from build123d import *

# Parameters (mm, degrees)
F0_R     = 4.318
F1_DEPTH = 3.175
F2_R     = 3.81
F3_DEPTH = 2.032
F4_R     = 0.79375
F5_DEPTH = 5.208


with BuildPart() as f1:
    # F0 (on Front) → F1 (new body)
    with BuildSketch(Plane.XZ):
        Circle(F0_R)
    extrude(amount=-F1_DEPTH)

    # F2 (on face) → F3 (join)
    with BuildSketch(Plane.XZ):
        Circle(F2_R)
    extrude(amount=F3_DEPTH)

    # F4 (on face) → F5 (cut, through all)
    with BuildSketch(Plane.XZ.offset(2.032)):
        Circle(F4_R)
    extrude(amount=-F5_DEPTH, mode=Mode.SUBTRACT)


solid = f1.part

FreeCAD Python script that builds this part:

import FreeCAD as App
import Part
import Sketcher

V = App.Vector
Q = App.Units.Quantity

doc = App.newDocument("Part")
body = doc.addObject("PartDesign::Body", "Body")

# Sketch on XZ plane
sketch1 = doc.addObject("Sketcher::SketchObject", "Sketch")
body.addObject(sketch1)
sketch1.AttachmentSupport = (doc.XZ_Plane, [""])
sketch1.MapMode = "FlatFace"
sketch1.addGeometry(Part.Circle(V(0, 0, 0), V(0, 0, 1), 4.3), False)
sketch1.addConstraint(Sketcher.Constraint("Coincident", 0, 3, -1, 1))
sketch1.addConstraint(Sketcher.Constraint("Diameter", 0, Q("0.34 in")))
pad1 = doc.addObject("PartDesign::Pad", "Pad")
body.addObject(pad1)
pad1.Profile = sketch1
pad1.Length = Q("0.125 in")
pad1.Reversed = True

# Sketch on XZ plane
sketch2 = doc.addObject("Sketcher::SketchObject", "Sketch001")
body.addObject(sketch2)
sketch2.AttachmentSupport = (doc.XZ_Plane, [""])
sketch2.MapMode = "FlatFace"
sketch2.addGeometry(Part.Circle(V(0, 0, 0), V(0, 0, 1), 3.8), False)
sketch2.addConstraint(Sketcher.Constraint("Coincident", 0, 3, -1, 1))
sketch2.addConstraint(Sketcher.Constraint("Diameter", 0, Q("0.3 in")))
pad2 = doc.addObject("PartDesign::Pad", "Pad001")
body.addObject(pad2)
pad2.Profile = sketch2
pad2.Length = Q("0.08 in")

# Sketch on XZ plane
sketch3 = doc.addObject("Sketcher::SketchObject", "Sketch002")
body.addObject(sketch3)
sketch3.AttachmentSupport = (doc.XZ_Plane, [""])
sketch3.MapMode = "FlatFace"
sketch3.AttachmentOffset = App.Placement(V(0, 0, 0.08 * 25.4), App.Rotation())
sketch3.addGeometry(Part.Circle(V(0, 0, 0), V(0, 0, 1), 0.8), False)
sketch3.addConstraint(Sketcher.Constraint("Coincident", 0, 3, -1, 1))
sketch3.addConstraint(Sketcher.Constraint("Diameter", 0, Q("0.0625 in")))
pocket1 = doc.addObject("PartDesign::Pocket", "Pocket")
body.addObject(pocket1)
pocket1.Profile = sketch3
pocket1.Type = "ThroughAll"

doc.recompute()
